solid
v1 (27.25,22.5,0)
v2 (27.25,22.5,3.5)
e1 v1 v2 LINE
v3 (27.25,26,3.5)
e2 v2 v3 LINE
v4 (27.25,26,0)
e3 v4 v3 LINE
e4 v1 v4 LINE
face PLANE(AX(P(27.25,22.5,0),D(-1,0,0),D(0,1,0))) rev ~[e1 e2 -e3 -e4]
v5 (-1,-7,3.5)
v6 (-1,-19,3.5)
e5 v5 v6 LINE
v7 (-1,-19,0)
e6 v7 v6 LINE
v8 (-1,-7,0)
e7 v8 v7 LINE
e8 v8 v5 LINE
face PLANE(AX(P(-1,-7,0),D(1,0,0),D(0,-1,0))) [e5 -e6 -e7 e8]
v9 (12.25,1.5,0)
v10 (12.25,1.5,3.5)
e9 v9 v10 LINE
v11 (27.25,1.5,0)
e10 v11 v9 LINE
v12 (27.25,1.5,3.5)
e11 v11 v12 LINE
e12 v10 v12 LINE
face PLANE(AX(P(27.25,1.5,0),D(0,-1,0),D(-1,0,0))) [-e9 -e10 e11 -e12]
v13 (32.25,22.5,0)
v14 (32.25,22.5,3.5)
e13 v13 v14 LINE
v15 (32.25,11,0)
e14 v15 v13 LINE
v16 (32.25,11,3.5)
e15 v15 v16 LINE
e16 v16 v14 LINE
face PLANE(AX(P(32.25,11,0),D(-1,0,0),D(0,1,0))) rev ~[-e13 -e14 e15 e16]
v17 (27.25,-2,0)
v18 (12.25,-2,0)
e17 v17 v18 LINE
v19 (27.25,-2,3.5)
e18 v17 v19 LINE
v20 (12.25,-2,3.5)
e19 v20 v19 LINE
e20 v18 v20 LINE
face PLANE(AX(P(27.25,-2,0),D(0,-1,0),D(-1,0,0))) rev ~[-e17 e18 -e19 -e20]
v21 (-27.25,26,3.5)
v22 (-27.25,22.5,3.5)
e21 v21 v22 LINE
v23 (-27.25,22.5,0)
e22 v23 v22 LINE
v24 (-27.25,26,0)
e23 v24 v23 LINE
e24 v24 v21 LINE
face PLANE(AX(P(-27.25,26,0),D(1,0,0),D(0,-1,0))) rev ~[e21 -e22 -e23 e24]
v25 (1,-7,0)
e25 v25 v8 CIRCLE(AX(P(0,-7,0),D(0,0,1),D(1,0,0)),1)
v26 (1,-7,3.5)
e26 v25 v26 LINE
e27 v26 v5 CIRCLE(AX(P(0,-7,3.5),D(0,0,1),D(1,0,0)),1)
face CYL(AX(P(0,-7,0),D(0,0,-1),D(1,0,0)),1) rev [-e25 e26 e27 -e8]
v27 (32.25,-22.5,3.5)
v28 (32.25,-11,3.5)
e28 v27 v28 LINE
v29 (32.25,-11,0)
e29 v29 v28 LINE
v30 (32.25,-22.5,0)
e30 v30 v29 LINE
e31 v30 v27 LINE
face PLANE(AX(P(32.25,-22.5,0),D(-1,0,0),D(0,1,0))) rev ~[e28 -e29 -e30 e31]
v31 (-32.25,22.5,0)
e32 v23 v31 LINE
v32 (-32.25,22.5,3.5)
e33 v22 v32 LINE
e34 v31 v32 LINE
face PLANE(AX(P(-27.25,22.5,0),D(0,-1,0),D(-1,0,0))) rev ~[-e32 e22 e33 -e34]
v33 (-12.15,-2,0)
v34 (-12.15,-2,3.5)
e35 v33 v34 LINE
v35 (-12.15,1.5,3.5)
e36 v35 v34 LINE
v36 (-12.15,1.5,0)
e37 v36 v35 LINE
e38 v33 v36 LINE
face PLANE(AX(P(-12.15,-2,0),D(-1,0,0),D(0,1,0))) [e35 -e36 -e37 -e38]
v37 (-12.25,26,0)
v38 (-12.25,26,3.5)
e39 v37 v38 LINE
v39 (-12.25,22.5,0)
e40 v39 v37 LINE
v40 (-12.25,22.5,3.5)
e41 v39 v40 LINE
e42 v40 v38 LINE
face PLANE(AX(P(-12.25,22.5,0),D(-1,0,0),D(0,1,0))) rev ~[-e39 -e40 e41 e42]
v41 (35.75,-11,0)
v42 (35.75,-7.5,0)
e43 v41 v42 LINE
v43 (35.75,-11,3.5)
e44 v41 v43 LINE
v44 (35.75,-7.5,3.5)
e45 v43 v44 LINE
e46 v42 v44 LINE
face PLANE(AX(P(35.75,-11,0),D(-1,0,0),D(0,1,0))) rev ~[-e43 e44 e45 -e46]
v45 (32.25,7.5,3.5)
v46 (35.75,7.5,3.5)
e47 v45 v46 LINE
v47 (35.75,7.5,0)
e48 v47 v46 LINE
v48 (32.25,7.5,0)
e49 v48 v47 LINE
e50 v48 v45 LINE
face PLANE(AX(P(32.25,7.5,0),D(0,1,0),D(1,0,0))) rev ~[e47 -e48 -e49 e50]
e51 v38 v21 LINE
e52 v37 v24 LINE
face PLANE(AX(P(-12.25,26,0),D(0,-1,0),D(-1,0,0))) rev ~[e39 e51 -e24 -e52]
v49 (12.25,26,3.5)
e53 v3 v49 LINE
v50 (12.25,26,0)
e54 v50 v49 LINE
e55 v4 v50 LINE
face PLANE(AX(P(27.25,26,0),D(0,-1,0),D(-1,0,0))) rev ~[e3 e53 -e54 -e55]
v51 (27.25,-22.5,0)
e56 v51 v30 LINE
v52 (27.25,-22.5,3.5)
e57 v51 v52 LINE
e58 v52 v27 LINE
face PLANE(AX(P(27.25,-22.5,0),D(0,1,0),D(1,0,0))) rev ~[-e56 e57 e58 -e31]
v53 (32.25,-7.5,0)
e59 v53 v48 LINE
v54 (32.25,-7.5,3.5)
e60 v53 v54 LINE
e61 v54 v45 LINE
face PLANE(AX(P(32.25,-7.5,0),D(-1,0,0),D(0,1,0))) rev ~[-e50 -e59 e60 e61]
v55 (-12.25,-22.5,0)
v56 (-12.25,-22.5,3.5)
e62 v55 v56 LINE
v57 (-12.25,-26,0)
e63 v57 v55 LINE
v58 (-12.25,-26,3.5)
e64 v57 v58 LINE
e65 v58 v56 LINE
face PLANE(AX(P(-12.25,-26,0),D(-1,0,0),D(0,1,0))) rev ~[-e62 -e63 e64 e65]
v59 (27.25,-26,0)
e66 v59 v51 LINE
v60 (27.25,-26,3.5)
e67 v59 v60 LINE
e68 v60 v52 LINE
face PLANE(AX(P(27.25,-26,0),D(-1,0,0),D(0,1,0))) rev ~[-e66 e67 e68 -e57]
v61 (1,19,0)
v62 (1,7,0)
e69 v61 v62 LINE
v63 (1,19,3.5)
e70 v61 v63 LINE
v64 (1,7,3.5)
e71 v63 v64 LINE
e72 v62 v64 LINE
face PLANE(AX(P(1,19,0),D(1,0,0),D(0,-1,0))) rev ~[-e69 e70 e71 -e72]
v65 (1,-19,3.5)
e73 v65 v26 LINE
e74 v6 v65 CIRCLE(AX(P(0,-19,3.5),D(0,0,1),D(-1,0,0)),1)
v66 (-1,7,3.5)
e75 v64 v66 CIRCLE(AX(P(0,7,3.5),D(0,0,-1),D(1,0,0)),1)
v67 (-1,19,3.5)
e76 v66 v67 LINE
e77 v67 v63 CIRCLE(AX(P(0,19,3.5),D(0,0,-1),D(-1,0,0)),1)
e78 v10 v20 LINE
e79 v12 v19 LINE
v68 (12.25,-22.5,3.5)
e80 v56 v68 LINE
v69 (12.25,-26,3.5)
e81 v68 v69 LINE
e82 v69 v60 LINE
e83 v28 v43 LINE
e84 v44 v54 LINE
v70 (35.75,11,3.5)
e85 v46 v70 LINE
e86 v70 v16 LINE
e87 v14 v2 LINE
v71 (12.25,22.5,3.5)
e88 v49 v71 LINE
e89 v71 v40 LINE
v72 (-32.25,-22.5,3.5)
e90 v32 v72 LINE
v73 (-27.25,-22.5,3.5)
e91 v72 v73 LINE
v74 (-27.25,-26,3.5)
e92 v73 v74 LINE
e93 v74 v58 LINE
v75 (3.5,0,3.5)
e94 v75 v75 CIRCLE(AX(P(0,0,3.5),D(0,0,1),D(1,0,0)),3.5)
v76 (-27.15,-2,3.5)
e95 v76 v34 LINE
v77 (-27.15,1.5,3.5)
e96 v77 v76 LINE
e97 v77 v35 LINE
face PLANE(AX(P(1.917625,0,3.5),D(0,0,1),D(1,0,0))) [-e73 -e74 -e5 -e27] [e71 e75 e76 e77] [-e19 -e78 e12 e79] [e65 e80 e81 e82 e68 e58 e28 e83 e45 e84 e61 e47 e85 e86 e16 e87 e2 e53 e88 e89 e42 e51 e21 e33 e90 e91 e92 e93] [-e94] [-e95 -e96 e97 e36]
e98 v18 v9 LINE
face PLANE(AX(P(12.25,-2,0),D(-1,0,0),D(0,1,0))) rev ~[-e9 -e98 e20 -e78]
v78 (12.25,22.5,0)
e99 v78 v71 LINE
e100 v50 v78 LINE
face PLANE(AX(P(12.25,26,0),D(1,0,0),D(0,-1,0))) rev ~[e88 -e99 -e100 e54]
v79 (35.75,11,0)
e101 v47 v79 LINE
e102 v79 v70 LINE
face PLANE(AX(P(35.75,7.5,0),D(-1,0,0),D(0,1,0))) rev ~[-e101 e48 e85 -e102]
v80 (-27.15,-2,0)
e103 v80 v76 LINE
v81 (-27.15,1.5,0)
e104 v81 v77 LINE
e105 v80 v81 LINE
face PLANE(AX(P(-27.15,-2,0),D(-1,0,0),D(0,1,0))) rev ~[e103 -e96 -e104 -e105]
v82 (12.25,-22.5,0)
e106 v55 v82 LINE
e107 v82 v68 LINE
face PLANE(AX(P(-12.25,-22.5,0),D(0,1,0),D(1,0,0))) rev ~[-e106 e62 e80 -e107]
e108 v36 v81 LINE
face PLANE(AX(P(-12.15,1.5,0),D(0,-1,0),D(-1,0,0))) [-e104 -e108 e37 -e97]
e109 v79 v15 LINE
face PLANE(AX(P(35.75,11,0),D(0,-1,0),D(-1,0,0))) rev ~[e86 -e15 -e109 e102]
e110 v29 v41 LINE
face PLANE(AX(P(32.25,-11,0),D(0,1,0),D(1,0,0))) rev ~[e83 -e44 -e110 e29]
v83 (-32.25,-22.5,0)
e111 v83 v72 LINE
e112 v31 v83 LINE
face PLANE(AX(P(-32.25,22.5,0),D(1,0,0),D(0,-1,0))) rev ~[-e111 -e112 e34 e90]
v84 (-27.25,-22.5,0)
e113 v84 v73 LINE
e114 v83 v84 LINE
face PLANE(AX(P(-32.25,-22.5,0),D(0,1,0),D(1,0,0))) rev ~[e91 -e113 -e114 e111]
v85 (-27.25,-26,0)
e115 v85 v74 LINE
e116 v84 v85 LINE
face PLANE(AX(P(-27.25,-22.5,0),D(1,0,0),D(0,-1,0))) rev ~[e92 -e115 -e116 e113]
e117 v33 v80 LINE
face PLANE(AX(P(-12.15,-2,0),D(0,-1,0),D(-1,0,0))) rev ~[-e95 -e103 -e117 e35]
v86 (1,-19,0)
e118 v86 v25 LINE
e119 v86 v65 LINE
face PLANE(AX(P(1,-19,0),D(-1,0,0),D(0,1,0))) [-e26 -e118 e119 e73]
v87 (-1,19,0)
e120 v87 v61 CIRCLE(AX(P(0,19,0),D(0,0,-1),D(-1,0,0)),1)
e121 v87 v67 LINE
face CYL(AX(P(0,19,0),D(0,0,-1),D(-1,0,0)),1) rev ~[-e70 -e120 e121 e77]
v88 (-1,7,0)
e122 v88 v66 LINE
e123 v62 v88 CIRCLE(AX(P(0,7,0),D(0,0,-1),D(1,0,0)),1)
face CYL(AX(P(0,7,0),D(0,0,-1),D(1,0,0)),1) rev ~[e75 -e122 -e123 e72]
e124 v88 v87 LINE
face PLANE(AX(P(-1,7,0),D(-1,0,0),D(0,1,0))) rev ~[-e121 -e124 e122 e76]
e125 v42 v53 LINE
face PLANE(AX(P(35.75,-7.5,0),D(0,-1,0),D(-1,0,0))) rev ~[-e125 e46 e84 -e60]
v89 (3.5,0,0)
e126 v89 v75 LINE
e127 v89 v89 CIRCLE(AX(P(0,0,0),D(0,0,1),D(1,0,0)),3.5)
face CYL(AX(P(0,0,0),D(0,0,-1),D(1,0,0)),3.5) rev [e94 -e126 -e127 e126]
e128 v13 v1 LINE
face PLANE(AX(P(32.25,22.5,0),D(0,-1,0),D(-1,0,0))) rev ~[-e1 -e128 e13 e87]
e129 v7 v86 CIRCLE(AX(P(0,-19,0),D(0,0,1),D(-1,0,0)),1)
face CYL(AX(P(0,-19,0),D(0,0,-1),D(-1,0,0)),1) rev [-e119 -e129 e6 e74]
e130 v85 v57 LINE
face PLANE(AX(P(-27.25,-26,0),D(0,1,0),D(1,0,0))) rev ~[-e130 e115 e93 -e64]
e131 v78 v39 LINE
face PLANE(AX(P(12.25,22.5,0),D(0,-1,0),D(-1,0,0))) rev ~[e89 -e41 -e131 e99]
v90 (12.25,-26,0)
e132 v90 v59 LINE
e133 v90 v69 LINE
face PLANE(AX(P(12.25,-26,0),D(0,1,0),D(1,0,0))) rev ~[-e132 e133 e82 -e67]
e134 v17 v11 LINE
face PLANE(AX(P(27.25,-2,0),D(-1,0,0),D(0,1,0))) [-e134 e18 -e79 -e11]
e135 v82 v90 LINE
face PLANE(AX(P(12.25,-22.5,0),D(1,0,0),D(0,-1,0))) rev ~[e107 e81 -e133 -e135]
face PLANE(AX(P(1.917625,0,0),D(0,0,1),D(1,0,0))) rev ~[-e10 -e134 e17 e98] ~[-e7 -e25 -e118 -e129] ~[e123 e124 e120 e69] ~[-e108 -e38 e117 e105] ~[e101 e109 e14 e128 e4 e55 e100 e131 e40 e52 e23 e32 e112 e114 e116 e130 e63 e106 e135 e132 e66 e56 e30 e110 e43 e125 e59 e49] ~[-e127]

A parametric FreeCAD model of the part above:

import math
import FreeCAD as App
import Part
import Sketcher

doc = App.newDocument("Part")
body = doc.addObject("PartDesign::Body", "Body")

# Sketch on XY plane
sketch1 = doc.addObject("Sketcher::SketchObject", "Sketch")
body.addObject(sketch1)
sketch1.AttachmentSupport = (doc.XY_Plane, [""])
sketch1.MapMode = "FlatFace"
sketch1.addGeometry(Part.LineSegment(App.Vector(27.2, -26, 0), App.Vector(27.2, -22.5, 0)), False)
sketch1.addGeometry(Part.LineSegment(App.Vector(27.2, -22.5, 0), App.Vector(32.2, -22.5, 0)), False)
sketch1.addGeometry(Part.LineSegment(App.Vector(32.2, -22.5, 0), App.Vector(32.2, -11, 0)), False)
sketch1.addGeometry(Part.LineSegment(App.Vector(32.2, -11, 0), App.Vector(35.8, -11, 0)), False)
sketch1.addGeometry(Part.LineSegment(App.Vector(35.8, -11, 0), App.Vector(35.8, -7.5, 0)), False)
sketch1.addGeometry(Part.LineSegment(App.Vector(35.8, -7.5, 0), App.Vector(32.2, -7.5, 0)), False)
sketch1.addGeometry(Part.LineSegment(App.Vector(32.2, -7.5, 0), App.Vector(32.2, 7.5, 0)), False)
sketch1.addGeometry(Part.LineSegment(App.Vector(32.2, 7.5, 0), App.Vector(35.8, 7.5, 0)), False)
sketch1.addGeometry(Part.LineSegment(App.Vector(35.8, 7.5, 0), App.Vector(35.8, 11, 0)), False)
sketch1.addGeometry(Part.LineSegment(App.Vector(35.8, 11, 0), App.Vector(32.2, 11, 0)), False)
sketch1.addGeometry(Part.LineSegment(App.Vector(32.2, 11, 0), App.Vector(32.2, 22.5, 0)), False)
sketch1.addGeometry(Part.LineSegment(App.Vector(32.2, 22.5, 0), App.Vector(27.2, 22.5, 0)), False)
sketch1.addGeometry(Part.LineSegment(App.Vector(27.2, 22.5, 0), App.Vector(27.2, 26, 0)), False)
sketch1.addGeometry(Part.LineSegment(App.Vector(27.2, 26, 0), App.Vector(12.2, 26, 0)), False)
sketch1.addGeometry(Part.LineSegment(App.Vector(12.2, 26, 0), App.Vector(12.2, 22.5, 0)), False)
sketch1.addGeometry(Part.LineSegment(App.Vector(12.2, 22.5, 0), App.Vector(-12.2, 22.5, 0)), False)
sketch1.addGeometry(Part.LineSegment(App.Vector(-12.2, 22.5, 0), App.Vector(-12.2, 26, 0)), False)
sketch1.addGeometry(Part.LineSegment(App.Vector(-12.2, 26, 0), App.Vector(-27.2, 26, 0)), False)
sketch1.addGeometry(Part.LineSegment(App.Vector(-27.2, 26, 0), App.Vector(-27.2, 22.5, 0)), False)
sketch1.addGeometry(Part.LineSegment(App.Vector(-27.2, 22.5, 0), App.Vector(-32.2, 22.5, 0)), False)
sketch1.addGeometry(Part.LineSegment(App.Vector(-32.2, 22.5, 0), App.Vector(-32.2, -22.5, 0)), False)
sketch1.addGeometry(Part.LineSegment(App.Vector(-32.2, -22.5, 0), App.Vector(-27.2, -22.5, 0)), False)
sketch1.addGeometry(Part.LineSegment(App.Vector(-27.2, -22.5, 0), App.Vector(-27.2, -26, 0)), False)
sketch1.addGeometry(Part.LineSegment(App.Vector(-27.2, -26, 0), App.Vector(-12.2, -26, 0)), False)
sketch1.addGeometry(Part.LineSegment(App.Vector(-12.2, -26, 0), App.Vector(-12.2, -22.5, 0)), False)
sketch1.addGeometry(Part.LineSegment(App.Vector(-12.2, -22.5, 0), App.Vector(12.2, -22.5, 0)), False)
sketch1.addGeometry(Part.LineSegment(App.Vector(12.2, -22.5, 0), App.Vector(12.2, -26, 0)), False)
sketch1.addGeometry(Part.LineSegment(App.Vector(12.2, -26, 0), App.Vector(27.2, -26, 0)), False)
sketch1.addGeometry(Part.LineSegment(App.Vector(1, -7, 0), App.Vector(1, -19, 0)), False)
sketch1.addGeometry(Part.ArcOfCircle(Part.Circle(App.Vector(0, -19, 0), App.Vector(0, 0, 1), 1), math.radians(180), math.radians(360)), False)
sketch1.addGeometry(Part.LineSegment(App.Vector(-1, -19, 0), App.Vector(-1, -7, 0)), False)
sketch1.addGeometry(Part.ArcOfCircle(Part.Circle(App.Vector(0, -7, 0), App.Vector(0, 0, 1), 1), math.radians(0), math.radians(180)), False)
sketch1.addGeometry(Part.Circle(App.Vector(0, 0, 0), App.Vector(0, 0, 1), 3.5), False)
sketch1.addGeometry(Part.ArcOfCircle(Part.Circle(App.Vector(0, 19, 0), App.Vector(0, 0, 1), 1), math.radians(0), math.radians(180)), False)
sketch1.addGeometry(Part.LineSegment(App.Vector(1, 19, 0), App.Vector(1, 7, 0)), False)
sketch1.addGeometry(Part.ArcOfCircle(Part.Circle(App.Vector(0, 7, 0), App.Vector(0, 0, 1), 1), math.radians(180), math.radians(360)), False)
sketch1.addGeometry(Part.LineSegment(App.Vector(-1, 7, 0), App.Vector(-1, 19, 0)), False)
sketch1.addConstraint(Sketcher.Constraint("Coincident", 0, 2, 1, 1))
sketch1.addConstraint(Sketcher.Constraint("Coincident", 1, 2, 2, 1))
sketch1.addConstraint(Sketcher.Constraint("Coincident", 2, 2, 3, 1))
sketch1.addConstraint(Sketcher.Constraint("Coincident", 3, 2, 4, 1))
sketch1.addConstraint(Sketcher.Constraint("Coincident", 4, 2, 5, 1))
sketch1.addConstraint(Sketcher.Constraint("Coincident", 5, 2, 6, 1))
sketch1.addConstraint(Sketcher.Constraint("Coincident", 6, 2, 7, 1))
sketch1.addConstraint(Sketcher.Constraint("Coincident", 7, 2, 8, 1))
sketch1.addConstraint(Sketcher.Constraint("Coincident", 8, 2, 9, 1))
sketch1.addConstraint(Sketcher.Constraint("Coincident", 9, 2, 10, 1))
sketch1.addConstraint(Sketcher.Constraint("Coincident", 10, 2, 11, 1))
sketch1.addConstraint(Sketcher.Constraint("Coincident", 11, 2, 12, 1))
sketch1.addConstraint(Sketcher.Constraint("Coincident", 12, 2, 13, 1))
sketch1.addConstraint(Sketcher.Constraint("Coincident", 13, 2, 14, 1))
sketch1.addConstraint(Sketcher.Constraint("Coincident", 14, 2, 15, 1))
sketch1.addConstraint(Sketcher.Constraint("Coincident", 15, 2, 16, 1))
sketch1.addConstraint(Sketcher.Constraint("Coincident", 16, 2, 17, 1))
sketch1.addConstraint(Sketcher.Constraint("Coincident", 17, 2, 18, 1))
sketch1.addConstraint(Sketcher.Constraint("Coincident", 18, 2, 19, 1))
sketch1.addConstraint(Sketcher.Constraint("Coincident", 19, 2, 20, 1))
sketch1.addConstraint(Sketcher.Constraint("Coincident", 20, 2, 21, 1))
sketch1.addConstraint(Sketcher.Constraint("Coincident", 21, 2, 22, 1))
sketch1.addConstraint(Sketcher.Constraint("Coincident", 22, 2, 23, 1))
sketch1.addConstraint(Sketcher.Constraint("Coincident", 23, 2, 24, 1))
sketch1.addConstraint(Sketcher.Constraint("Coincident", 24, 2, 25, 1))
sketch1.addConstraint(Sketcher.Constraint("Coincident", 25, 2, 26, 1))
sketch1.addConstraint(Sketcher.Constraint("Coincident", 26, 2, 27, 1))
sketch1.addConstraint(Sketcher.Constraint("Coincident", 27, 2, 0, 1))
sketch1.addConstraint(Sketcher.Constraint("Tangent", 28, 2, 29, 2))
sketch1.addConstraint(Sketcher.Constraint("Tangent", 29, 1, 30, 1))
sketch1.addConstraint(Sketcher.Constraint("Tangent", 30, 2, 31, 2))
sketch1.addConstraint(Sketcher.Constraint("Tangent", 31, 1, 28, 1))
sketch1.addConstraint(Sketcher.Constraint("Tangent", 33, 1, 34, 1))
sketch1.addConstraint(Sketcher.Constraint("Tangent", 34, 2, 35, 2))
sketch1.addConstraint(Sketcher.Constraint("Tangent", 35, 1, 36, 1))
sketch1.addConstraint(Sketcher.Constraint("Tangent", 36, 2, 33, 2))
sketch1.addConstraint(Sketcher.Constraint("Vertical", 0))
sketch1.addConstraint(Sketcher.Constraint("Horizontal", 1))
sketch1.addConstraint(Sketcher.Constraint("Vertical", 2))
sketch1.addConstraint(Sketcher.Constraint("Horizontal", 3))
sketch1.addConstraint(Sketcher.Constraint("Vertical", 4))
sketch1.addConstraint(Sketcher.Constraint("Horizontal", 5))
sketch1.addConstraint(Sketcher.Constraint("Vertical", 6))
sketch1.addConstraint(Sketcher.Constraint("Horizontal", 7))
sketch1.addConstraint(Sketcher.Constraint("Vertical", 8))
sketch1.addConstraint(Sketcher.Constraint("Horizontal", 9))
sketch1.addConstraint(Sketcher.Constraint("Vertical", 10))
sketch1.addConstraint(Sketcher.Constraint("Horizontal", 11))
sketch1.addConstraint(Sketcher.Constraint("Vertical", 12))
sketch1.addConstraint(Sketcher.Constraint("Horizontal", 13))
sketch1.addConstraint(Sketcher.Constraint("Vertical", 14))
sketch1.addConstraint(Sketcher.Constraint("Horizontal", 15))
sketch1.addConstraint(Sketcher.Constraint("Vertical", 16))
sketch1.addConstraint(Sketcher.Constraint("Horizontal", 17))
sketch1.addConstraint(Sketcher.Constraint("Vertical", 18))
sketch1.addConstraint(Sketcher.Constraint("Horizontal", 19))
sketch1.addConstraint(Sketcher.Constraint("Vertical", 20))
sketch1.addConstraint(Sketcher.Constraint("Horizontal", 21))
sketch1.addConstraint(Sketcher.Constraint("Vertical", 22))
sketch1.addConstraint(Sketcher.Constraint("Horizontal", 23))
sketch1.addConstraint(Sketcher.Constraint("Vertical", 24))
sketch1.addConstraint(Sketcher.Constraint("Horizontal", 25))
sketch1.addConstraint(Sketcher.Constraint("Vertical", 26))
sketch1.addConstraint(Sketcher.Constraint("Horizontal", 27))
sketch1.addConstraint(Sketcher.Constraint("Vertical", 28))
sketch1.addConstraint(Sketcher.Constraint("Vertical", 30))
sketch1.addConstraint(Sketcher.Constraint("Vertical", 34))
sketch1.addConstraint(Sketcher.Constraint("Vertical", 36))
sketch1.addConstraint(Sketcher.Constraint("Coincident", 32, 3, -1, 1))
sketch1.addConstraint(Sketcher.Constraint("Equal", 31, 33))
sketch1.addConstraint(Sketcher.Constraint("Symmetric", 29, 3, 33, 3, -1, 1))
sketch1.addConstraint(Sketcher.Constraint("Symmetric", 0, 2, 18, 2, -1, 1))
sketch1.addConstraint(Sketcher.Constraint("Symmetric", 10, 2, 20, 2, -1, 1))
sketch1.addConstraint(Sketcher.Constraint("Symmetric", 12, 2, 22, 2, -1, 1))
sketch1.addConstraint(Sketcher.Constraint("Symmetric", 14, 2, 24, 2, -1, 1))
sketch1.addConstraint(Sketcher.Constraint("Symmetric", 16, 2, 26, 2, -1, 1))
sketch1.addConstraint(Sketcher.Constraint("Symmetric", 13, 2, 16, 2, -2))
sketch1.addConstraint(Sketcher.Constraint("Symmetric", 11, 2, 18, 2, -2))
sketch1.addConstraint(Sketcher.Constraint("Symmetric", 31, 3, 35, 3, -1))
sketch1.addConstraint(Sketcher.Constraint("Symmetric", 4, 2, 7, 2, -1))
sketch1.addConstraint(Sketcher.Constraint("Symmetric", 2, 2, 9, 2, -1))
sketch1.addConstraint(Sketcher.Constraint("Horizontal", 11, 2, 14, 2))
sketch1.addConstraint(Sketcher.Constraint("Vertical", 2, 2, 5, 2))
sketch1.addConstraint(Sketcher.Constraint("Equal", 9, 0))
sketch1.addConstraint(Sketcher.Constraint("Equal", 0, 4))
sketch1.addConstraint(Sketcher.Constraint("Equal", 27, 6))
sketch1.addConstraint(Sketcher.Constraint("Diameter", 32, 7.0))
sketch1.addConstraint(Sketcher.Constraint("Radius", 29, 1.0))
sketch1.addConstraint(Sketcher.Constraint("DistanceX", 1, 1, 1, 2, 5.0))
sketch1.addConstraint(Sketcher.Constraint("DistanceX", 13, 2, 13, 1, 15.0))
sketch1.addConstraint(Sketcher.Constraint("DistanceY", 20, 2, 20, 1, 45.0))
sketch1.addConstraint(Sketcher.Constraint("DistanceY", 28, 2, 28, 1, 12.0))
sketch1.addConstraint(Sketcher.Constraint("DistanceX", 3, 1, 3, 2, 3.5))
sketch1.addConstraint(Sketcher.Constraint("DistanceX", 15, 2, 15, 1, 24.5))
sketch1.addConstraint(Sketcher.Constraint("DistanceY", 29, 3, -1, 1, 19.0))
pad1 = doc.addObject("PartDesign::Pad", "Pad")
body.addObject(pad1)
pad1.Profile = sketch1
pad1.Length = 3.5

# Sketch on XY plane
sketch2 = doc.addObject("Sketcher::SketchObject", "Sketch001")
body.addObject(sketch2)
sketch2.AttachmentSupport = (doc.XY_Plane, [""])
sketch2.MapMode = "FlatFace"
sketch2.addGeometry(Part.LineSegment(App.Vector(-12.2, 1.5, 0), App.Vector(-12.2, -2, 0)), False)
sketch2.addGeometry(Part.LineSegment(App.Vector(-12.2, -2, 0), App.Vector(-27.1, -2, 0)), False)
sketch2.addGeometry(Part.LineSegment(App.Vector(-27.1, -2, 0), App.Vector(-27.1, 1.5, 0)), False)
sketch2.addGeometry(Part.LineSegment(App.Vector(-27.1, 1.5, 0), App.Vector(-12.2, 1.5, 0)), False)
sketch2.addGeometry(Part.LineSegment(App.Vector(27.2, 1.5, 0), App.Vector(27.2, -2, 0)), False)
sketch2.addGeometry(Part.LineSegment(App.Vector(27.2, -2, 0), App.Vector(12.2, -2, 0)), False)
sketch2.addGeometry(Part.LineSegment(App.Vector(12.2, -2, 0), App.Vector(12.2, 1.5, 0)), False)
sketch2.addGeometry(Part.LineSegment(App.Vector(12.2, 1.5, 0), App.Vector(27.2, 1.5, 0)), False)
sketch2.addConstraint(Sketcher.Constraint("Coincident", 0, 2, 1, 1))
sketch2.addConstraint(Sketcher.Constraint("Coincident", 1, 2, 2, 1))
sketch2.addConstraint(Sketcher.Constraint("Coincident", 2, 2, 3, 1))
sketch2.addConstraint(Sketcher.Constraint("Coincident", 3, 2, 0, 1))
sketch2.addConstraint(Sketcher.Constraint("Coincident", 4, 2, 5, 1))
sketch2.addConstraint(Sketcher.Constraint("Coincident", 5, 2, 6, 1))
sketch2.addConstraint(Sketcher.Constraint("Coincident", 6, 2, 7, 1))
sketch2.addConstraint(Sketcher.Constraint("Coincident", 7, 2, 4, 1))
sketch2.addConstraint(Sketcher.Constraint("Vertical", 0))
sketch2.addConstraint(Sketcher.Constraint("Horizontal", 1))
sketch2.addConstraint(Sketcher.Constraint("Vertical", 2))
sketch2.addConstraint(Sketcher.Constraint("Horizontal", 3))
sketch2.addConstraint(Sketcher.Constraint("Vertical", 4))
sketch2.addConstraint(Sketcher.Constraint("Horizontal", 5))
sketch2.addConstraint(Sketcher.Constraint("Vertical", 6))
sketch2.addConstraint(Sketcher.Constraint("Horizontal", 7))
sketch2.addConstraint(Sketcher.Constraint("Horizontal", 1, 2, 4, 2))
sketch2.addConstraint(Sketcher.Constraint("Horizontal", 3, 2, 6, 2))
sketch2.addConstraint(Sketcher.Constraint("Equal", 3, 5))
sketch2.addConstraint(Sketcher.Constraint("DistanceX", 1, 2, 1, 1, 15.0))
sketch2.addConstraint(Sketcher.Constraint("DistanceY", 0, 2, 0, 1, 3.5))
sketch2.addConstraint(Sketcher.Constraint("DistanceY", 0, 2, -1, 1, 2.0))
sketch2.addConstraint(Sketcher.Constraint("DistanceX", 0, 2, 4, 2, 39.4))
sketch2.addConstraint(Sketcher.Constraint("DistanceX", 0, 2, -1, 1, 12.15))
pocket1 = doc.addObject("PartDesign::Pocket", "Pocket")
body.addObject(pocket1)
pocket1.Profile = sketch2
pocket1.Type = "ThroughAll"
pocket1.Reversed = True

doc.recompute()
